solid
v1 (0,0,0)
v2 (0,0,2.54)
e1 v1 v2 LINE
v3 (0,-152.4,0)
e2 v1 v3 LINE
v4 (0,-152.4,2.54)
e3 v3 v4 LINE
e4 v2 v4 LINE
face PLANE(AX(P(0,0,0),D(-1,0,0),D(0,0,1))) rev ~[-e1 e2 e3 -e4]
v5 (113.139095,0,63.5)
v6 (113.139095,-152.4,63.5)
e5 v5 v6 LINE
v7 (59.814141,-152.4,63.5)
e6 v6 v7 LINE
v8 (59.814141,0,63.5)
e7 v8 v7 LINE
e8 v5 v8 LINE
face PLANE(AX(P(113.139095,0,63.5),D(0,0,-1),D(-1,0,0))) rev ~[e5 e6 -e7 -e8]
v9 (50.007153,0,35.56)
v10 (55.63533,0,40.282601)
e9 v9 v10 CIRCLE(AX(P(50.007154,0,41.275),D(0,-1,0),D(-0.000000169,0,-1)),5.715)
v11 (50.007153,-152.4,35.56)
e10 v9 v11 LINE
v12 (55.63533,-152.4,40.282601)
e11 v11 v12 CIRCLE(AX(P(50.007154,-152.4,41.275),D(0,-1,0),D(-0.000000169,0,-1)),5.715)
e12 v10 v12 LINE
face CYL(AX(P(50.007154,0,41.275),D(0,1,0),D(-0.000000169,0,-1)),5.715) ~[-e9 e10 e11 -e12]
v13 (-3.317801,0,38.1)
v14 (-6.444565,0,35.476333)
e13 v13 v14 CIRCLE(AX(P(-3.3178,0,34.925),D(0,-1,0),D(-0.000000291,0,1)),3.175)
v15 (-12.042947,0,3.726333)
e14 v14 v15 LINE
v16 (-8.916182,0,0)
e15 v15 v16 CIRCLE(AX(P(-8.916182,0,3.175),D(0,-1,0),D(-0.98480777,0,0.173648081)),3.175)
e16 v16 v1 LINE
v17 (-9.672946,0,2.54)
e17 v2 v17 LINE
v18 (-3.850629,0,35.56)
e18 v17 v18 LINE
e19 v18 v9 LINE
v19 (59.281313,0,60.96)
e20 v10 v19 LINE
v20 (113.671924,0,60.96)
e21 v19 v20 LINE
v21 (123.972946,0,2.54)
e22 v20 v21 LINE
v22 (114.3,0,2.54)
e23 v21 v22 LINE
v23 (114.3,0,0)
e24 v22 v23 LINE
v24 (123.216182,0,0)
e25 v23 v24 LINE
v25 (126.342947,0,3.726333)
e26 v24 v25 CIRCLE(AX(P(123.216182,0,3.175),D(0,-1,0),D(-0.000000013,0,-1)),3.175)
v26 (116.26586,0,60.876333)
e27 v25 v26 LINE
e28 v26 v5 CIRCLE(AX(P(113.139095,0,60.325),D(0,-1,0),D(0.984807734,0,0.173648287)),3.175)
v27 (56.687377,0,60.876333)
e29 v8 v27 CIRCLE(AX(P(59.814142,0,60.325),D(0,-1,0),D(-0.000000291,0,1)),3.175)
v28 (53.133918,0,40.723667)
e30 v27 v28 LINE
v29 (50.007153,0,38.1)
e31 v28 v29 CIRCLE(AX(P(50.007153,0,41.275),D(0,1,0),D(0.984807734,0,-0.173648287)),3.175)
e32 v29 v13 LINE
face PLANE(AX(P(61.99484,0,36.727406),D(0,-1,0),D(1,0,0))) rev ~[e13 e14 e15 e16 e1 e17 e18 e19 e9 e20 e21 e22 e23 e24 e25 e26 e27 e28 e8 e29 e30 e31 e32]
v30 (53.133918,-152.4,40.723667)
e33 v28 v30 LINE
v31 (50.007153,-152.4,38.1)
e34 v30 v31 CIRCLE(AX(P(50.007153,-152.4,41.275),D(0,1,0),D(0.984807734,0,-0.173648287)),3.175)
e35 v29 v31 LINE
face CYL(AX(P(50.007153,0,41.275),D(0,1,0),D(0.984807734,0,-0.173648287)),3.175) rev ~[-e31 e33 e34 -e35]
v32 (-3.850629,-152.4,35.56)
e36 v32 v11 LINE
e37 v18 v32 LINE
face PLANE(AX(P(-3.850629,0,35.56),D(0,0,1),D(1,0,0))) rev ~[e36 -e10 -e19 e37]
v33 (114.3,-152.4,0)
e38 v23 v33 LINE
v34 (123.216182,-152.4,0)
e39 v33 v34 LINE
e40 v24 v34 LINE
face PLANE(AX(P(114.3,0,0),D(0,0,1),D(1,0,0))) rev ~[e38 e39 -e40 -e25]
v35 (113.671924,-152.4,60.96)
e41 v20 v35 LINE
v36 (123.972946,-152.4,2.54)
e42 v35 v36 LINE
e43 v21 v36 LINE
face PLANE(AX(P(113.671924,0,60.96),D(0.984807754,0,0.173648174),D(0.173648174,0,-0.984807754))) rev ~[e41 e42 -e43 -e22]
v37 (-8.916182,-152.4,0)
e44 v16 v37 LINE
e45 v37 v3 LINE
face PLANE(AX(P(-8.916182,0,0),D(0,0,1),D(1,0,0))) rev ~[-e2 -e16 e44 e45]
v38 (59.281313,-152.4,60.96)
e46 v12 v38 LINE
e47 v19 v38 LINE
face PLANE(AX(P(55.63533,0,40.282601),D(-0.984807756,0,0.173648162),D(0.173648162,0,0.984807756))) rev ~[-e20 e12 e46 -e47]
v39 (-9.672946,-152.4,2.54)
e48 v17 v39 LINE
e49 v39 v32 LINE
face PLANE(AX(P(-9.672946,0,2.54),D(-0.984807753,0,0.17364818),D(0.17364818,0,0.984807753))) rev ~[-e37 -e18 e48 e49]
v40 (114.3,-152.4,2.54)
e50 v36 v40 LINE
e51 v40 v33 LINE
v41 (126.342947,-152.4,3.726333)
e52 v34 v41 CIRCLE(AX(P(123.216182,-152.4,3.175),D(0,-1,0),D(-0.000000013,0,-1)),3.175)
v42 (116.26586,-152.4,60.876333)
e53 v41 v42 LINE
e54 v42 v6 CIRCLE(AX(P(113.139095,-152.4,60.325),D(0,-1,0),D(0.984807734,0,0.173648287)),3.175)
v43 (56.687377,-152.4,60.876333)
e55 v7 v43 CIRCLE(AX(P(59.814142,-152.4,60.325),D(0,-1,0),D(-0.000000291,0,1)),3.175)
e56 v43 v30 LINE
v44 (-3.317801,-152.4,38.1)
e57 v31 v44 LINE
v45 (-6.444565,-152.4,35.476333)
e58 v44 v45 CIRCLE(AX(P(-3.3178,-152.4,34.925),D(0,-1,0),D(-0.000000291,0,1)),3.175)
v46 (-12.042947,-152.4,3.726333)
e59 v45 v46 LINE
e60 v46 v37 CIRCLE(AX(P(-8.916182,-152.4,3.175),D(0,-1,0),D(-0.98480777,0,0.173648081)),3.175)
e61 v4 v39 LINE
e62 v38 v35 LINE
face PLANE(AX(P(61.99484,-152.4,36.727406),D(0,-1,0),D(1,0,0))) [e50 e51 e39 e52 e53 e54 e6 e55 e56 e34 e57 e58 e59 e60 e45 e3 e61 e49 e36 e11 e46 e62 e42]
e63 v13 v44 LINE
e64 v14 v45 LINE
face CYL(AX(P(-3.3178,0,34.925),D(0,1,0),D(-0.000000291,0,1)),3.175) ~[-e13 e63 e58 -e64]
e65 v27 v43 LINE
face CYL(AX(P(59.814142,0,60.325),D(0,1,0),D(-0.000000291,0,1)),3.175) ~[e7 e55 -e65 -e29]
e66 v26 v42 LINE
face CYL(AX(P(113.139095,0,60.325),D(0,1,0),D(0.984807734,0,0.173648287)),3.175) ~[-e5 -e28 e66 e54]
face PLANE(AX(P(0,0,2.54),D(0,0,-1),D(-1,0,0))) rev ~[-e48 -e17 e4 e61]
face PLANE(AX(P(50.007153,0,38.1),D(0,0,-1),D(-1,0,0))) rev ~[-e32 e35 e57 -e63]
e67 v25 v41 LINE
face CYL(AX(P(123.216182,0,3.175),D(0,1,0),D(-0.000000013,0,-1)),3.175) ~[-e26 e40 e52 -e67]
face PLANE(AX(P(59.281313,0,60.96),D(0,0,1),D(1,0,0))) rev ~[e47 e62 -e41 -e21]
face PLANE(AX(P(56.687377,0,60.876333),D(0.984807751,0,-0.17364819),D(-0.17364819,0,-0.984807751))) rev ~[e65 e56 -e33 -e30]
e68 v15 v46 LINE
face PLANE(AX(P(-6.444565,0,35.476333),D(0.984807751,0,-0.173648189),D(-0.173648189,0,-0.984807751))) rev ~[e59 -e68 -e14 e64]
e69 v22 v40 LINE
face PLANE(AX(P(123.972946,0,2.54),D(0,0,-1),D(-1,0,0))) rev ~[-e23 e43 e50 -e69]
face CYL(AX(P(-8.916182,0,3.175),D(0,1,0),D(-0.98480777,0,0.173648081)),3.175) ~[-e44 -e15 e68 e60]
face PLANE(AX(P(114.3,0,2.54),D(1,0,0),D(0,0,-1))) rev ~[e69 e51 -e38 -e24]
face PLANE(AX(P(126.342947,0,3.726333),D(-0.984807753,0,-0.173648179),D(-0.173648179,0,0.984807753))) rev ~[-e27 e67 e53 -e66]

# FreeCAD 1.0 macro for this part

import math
import FreeCAD as App
import Part
import Sketcher
Q = App.Units.Quantity

doc = App.newDocument("Part")
body = doc.addObject("PartDesign::Body", "Body")

sketch1 = body.newObject("Sketcher::SketchObject", "Sketch")
sketch1.AttachmentSupport = (doc.getObject("XZ_Plane"), [""])
sketch1.MapMode = "FlatFace"
sketch1.addGeometry([
    Part.LineSegment(App.Vector(-8.9, 0, 0), App.Vector(0, 0, 0)),
    Part.LineSegment(App.Vector(0, 0, 0), App.Vector(0, 2.5, 0)),
    Part.LineSegment(App.Vector(0, 2.5, 0), App.Vector(-9.7, 2.5, 0)),
    Part.LineSegment(App.Vector(-9.7, 2.5, 0), App.Vector(-3.9, 35.6, 0)),
    Part.LineSegment(App.Vector(-3.9, 35.6, 0), App.Vector(50, 35.6, 0)),
    Part.ArcOfCircle(Part.Circle(App.Vector(50, 41.3, 0), App.Vector(0, 0, 1), 5.7), math.radians(-90), math.radians(-10)),
    Part.LineSegment(App.Vector(55.6, 40.3, 0), App.Vector(59.3, 61, 0)),
    Part.LineSegment(App.Vector(59.3, 61, 0), App.Vector(113.7, 61, 0)),
    Part.LineSegment(App.Vector(113.7, 61, 0), App.Vector(124, 2.5, 0)),
    Part.LineSegment(App.Vector(124, 2.5, 0), App.Vector(114.3, 2.5, 0)),
    Part.LineSegment(App.Vector(114.3, 2.5, 0), App.Vector(114.3, 0, 0)),
    Part.LineSegment(App.Vector(114.3, 0, 0), App.Vector(123.2, 0, 0)),
    Part.ArcOfCircle(Part.Circle(App.Vector(123.2, 3.2, 0), App.Vector(0, 0, 1), 3.2), math.radians(-90), math.radians(10)),
    Part.LineSegment(App.Vector(126.3, 3.7, 0), App.Vector(116.3, 60.9, 0)),
    Part.ArcOfCircle(Part.Circle(App.Vector(113.1, 60.3, 0), App.Vector(0, 0, 1), 3.2), math.radians(10), math.radians(90)),
    Part.LineSegment(App.Vector(113.1, 63.5, 0), App.Vector(59.8, 63.5, 0)),
    Part.ArcOfCircle(Part.Circle(App.Vector(59.8, 60.3, 0), App.Vector(0, 0, 1), 3.2), math.radians(90), math.radians(170)),
    Part.LineSegment(App.Vector(56.7, 60.9, 0), App.Vector(53.1, 40.7, 0)),
    Part.ArcOfCircle(Part.Circle(App.Vector(50, 41.3, 0), App.Vector(0, 0, 1), 3.2), math.radians(-90), math.radians(-10)),
    Part.LineSegment(App.Vector(50, 38.1, 0), App.Vector(-3.3, 38.1, 0)),
    Part.ArcOfCircle(Part.Circle(App.Vector(-3.3, 34.9, 0), App.Vector(0, 0, 1), 3.2), math.radians(90), math.radians(170)),
    Part.LineSegment(App.Vector(-6.4, 35.5, 0), App.Vector(-12, 3.7, 0)),
    Part.ArcOfCircle(Part.Circle(App.Vector(-8.9, 3.2, 0), App.Vector(0, 0, 1), 3.2), math.radians(170), math.radians(270)),
], False)
sketch1.addConstraint([
    Sketcher.Constraint("Coincident", 0, 2, 1, 1),
    Sketcher.Constraint("Coincident", 1, 2, 2, 1),
    Sketcher.Constraint("Coincident", 2, 2, 3, 1),
    Sketcher.Constraint("Coincident", 3, 2, 4, 1),
    Sketcher.Constraint("Tangent", 4, 2, 5, 1),
    Sketcher.Constraint("Tangent", 5, 2, 6, 1),
    Sketcher.Constraint("Coincident", 6, 2, 7, 1),
    Sketcher.Constraint("Coincident", 7, 2, 8, 1),
    Sketcher.Constraint("Coincident", 8, 2, 9, 1),
    Sketcher.Constraint("Coincident", 9, 2, 10, 1),
    Sketcher.Constraint("Coincident", 10, 2, 11, 1),
    Sketcher.Constraint("Tangent", 11, 2, 12, 1),
    Sketcher.Constraint("Tangent", 12, 2, 13, 1),
    Sketcher.Constraint("Tangent", 13, 2, 14, 1),
    Sketcher.Constraint("Tangent", 14, 2, 15, 1),
    Sketcher.Constraint("Tangent", 15, 2, 16, 1),
    Sketcher.Constraint("Tangent", 16, 2, 17, 1),
    Sketcher.Constraint("Tangent", 17, 2, 18, 2),
    Sketcher.Constraint("Tangent", 18, 1, 19, 1),
    Sketcher.Constraint("Tangent", 19, 2, 20, 1),
    Sketcher.Constraint("Tangent", 20, 2, 21, 1),
    Sketcher.Constraint("Tangent", 21, 2, 22, 1),
    Sketcher.Constraint("Tangent", 22, 2, 0, 1),
    Sketcher.Constraint("Horizontal", 0),
    Sketcher.Constraint("Vertical", 1),
    Sketcher.Constraint("Horizontal", 2),
    Sketcher.Constraint("Horizontal", 4),
    Sketcher.Constraint("Horizontal", 7),
    Sketcher.Constraint("Horizontal", 9),
    Sketcher.Constraint("Vertical", 10),
    Sketcher.Constraint("Horizontal", 11),
    Sketcher.Constraint("Horizontal", 15),
    Sketcher.Constraint("Horizontal", 19),
    Sketcher.Constraint("Coincident", 0, 2, -1, 1),
    Sketcher.Constraint("Coincident", 18, 3, 5, 3),
    Sketcher.Constraint("Equal", 12, 14),
    Sketcher.Constraint("Equal", 14, 16),
    Sketcher.Constraint("Equal", 16, 18),
    Sketcher.Constraint("Equal", 18, 20),
    Sketcher.Constraint("Equal", 20, 22),
    Sketcher.Constraint("PointOnObject", 10, 2, -1),
    Sketcher.Constraint("Parallel", 3, 6),
    Sketcher.Constraint("Parallel", 8, 13),
    Sketcher.Constraint("Parallel", 6, 17),
    Sketcher.Constraint("Parallel", 17, 21),
    Sketcher.Constraint("Horizontal", 2, 2, 8, 2),
    Sketcher.Constraint("Horizontal", 13, 2, 16, 2),
    Sketcher.Constraint("Equal", 2, 9),
    Sketcher.Constraint("Equal", 0, 11),
    Sketcher.Constraint("Equal", 15, 19),
    Sketcher.Constraint("DistanceY", 1, 1, 1, 2, Q("0.1 in")),
    Sketcher.Constraint("Angle", 3, Q("80 deg")),
    Sketcher.Constraint("Radius", 5, Q("0.225 in")),
    Sketcher.Constraint("Radius", 12, Q("0.125 in")),
    Sketcher.Constraint("DistanceY", 20, 3, 16, 3, Q("1 in")),
    Sketcher.Constraint("DistanceY", 4, 2, 6, 2, Q("1 in")),
    Sketcher.Constraint("DistanceY", -1, 1, 3, 2, Q("1.4 in")),
    Sketcher.Constraint("DistanceX", -1, 1, 9, 2, Q("4.5 in")),
    Sketcher.Constraint("DistanceX", 0, 1, 0, 2, Q("8.916182 mm")),
    Sketcher.Constraint("DistanceX", 7, 1, 7, 2, Q("54.390611 mm")),
])
pad1 = body.newObject("PartDesign::Pad", "Pad")
pad1.Profile = sketch1
pad1.Length = Q("6 in")

doc.recompute()
